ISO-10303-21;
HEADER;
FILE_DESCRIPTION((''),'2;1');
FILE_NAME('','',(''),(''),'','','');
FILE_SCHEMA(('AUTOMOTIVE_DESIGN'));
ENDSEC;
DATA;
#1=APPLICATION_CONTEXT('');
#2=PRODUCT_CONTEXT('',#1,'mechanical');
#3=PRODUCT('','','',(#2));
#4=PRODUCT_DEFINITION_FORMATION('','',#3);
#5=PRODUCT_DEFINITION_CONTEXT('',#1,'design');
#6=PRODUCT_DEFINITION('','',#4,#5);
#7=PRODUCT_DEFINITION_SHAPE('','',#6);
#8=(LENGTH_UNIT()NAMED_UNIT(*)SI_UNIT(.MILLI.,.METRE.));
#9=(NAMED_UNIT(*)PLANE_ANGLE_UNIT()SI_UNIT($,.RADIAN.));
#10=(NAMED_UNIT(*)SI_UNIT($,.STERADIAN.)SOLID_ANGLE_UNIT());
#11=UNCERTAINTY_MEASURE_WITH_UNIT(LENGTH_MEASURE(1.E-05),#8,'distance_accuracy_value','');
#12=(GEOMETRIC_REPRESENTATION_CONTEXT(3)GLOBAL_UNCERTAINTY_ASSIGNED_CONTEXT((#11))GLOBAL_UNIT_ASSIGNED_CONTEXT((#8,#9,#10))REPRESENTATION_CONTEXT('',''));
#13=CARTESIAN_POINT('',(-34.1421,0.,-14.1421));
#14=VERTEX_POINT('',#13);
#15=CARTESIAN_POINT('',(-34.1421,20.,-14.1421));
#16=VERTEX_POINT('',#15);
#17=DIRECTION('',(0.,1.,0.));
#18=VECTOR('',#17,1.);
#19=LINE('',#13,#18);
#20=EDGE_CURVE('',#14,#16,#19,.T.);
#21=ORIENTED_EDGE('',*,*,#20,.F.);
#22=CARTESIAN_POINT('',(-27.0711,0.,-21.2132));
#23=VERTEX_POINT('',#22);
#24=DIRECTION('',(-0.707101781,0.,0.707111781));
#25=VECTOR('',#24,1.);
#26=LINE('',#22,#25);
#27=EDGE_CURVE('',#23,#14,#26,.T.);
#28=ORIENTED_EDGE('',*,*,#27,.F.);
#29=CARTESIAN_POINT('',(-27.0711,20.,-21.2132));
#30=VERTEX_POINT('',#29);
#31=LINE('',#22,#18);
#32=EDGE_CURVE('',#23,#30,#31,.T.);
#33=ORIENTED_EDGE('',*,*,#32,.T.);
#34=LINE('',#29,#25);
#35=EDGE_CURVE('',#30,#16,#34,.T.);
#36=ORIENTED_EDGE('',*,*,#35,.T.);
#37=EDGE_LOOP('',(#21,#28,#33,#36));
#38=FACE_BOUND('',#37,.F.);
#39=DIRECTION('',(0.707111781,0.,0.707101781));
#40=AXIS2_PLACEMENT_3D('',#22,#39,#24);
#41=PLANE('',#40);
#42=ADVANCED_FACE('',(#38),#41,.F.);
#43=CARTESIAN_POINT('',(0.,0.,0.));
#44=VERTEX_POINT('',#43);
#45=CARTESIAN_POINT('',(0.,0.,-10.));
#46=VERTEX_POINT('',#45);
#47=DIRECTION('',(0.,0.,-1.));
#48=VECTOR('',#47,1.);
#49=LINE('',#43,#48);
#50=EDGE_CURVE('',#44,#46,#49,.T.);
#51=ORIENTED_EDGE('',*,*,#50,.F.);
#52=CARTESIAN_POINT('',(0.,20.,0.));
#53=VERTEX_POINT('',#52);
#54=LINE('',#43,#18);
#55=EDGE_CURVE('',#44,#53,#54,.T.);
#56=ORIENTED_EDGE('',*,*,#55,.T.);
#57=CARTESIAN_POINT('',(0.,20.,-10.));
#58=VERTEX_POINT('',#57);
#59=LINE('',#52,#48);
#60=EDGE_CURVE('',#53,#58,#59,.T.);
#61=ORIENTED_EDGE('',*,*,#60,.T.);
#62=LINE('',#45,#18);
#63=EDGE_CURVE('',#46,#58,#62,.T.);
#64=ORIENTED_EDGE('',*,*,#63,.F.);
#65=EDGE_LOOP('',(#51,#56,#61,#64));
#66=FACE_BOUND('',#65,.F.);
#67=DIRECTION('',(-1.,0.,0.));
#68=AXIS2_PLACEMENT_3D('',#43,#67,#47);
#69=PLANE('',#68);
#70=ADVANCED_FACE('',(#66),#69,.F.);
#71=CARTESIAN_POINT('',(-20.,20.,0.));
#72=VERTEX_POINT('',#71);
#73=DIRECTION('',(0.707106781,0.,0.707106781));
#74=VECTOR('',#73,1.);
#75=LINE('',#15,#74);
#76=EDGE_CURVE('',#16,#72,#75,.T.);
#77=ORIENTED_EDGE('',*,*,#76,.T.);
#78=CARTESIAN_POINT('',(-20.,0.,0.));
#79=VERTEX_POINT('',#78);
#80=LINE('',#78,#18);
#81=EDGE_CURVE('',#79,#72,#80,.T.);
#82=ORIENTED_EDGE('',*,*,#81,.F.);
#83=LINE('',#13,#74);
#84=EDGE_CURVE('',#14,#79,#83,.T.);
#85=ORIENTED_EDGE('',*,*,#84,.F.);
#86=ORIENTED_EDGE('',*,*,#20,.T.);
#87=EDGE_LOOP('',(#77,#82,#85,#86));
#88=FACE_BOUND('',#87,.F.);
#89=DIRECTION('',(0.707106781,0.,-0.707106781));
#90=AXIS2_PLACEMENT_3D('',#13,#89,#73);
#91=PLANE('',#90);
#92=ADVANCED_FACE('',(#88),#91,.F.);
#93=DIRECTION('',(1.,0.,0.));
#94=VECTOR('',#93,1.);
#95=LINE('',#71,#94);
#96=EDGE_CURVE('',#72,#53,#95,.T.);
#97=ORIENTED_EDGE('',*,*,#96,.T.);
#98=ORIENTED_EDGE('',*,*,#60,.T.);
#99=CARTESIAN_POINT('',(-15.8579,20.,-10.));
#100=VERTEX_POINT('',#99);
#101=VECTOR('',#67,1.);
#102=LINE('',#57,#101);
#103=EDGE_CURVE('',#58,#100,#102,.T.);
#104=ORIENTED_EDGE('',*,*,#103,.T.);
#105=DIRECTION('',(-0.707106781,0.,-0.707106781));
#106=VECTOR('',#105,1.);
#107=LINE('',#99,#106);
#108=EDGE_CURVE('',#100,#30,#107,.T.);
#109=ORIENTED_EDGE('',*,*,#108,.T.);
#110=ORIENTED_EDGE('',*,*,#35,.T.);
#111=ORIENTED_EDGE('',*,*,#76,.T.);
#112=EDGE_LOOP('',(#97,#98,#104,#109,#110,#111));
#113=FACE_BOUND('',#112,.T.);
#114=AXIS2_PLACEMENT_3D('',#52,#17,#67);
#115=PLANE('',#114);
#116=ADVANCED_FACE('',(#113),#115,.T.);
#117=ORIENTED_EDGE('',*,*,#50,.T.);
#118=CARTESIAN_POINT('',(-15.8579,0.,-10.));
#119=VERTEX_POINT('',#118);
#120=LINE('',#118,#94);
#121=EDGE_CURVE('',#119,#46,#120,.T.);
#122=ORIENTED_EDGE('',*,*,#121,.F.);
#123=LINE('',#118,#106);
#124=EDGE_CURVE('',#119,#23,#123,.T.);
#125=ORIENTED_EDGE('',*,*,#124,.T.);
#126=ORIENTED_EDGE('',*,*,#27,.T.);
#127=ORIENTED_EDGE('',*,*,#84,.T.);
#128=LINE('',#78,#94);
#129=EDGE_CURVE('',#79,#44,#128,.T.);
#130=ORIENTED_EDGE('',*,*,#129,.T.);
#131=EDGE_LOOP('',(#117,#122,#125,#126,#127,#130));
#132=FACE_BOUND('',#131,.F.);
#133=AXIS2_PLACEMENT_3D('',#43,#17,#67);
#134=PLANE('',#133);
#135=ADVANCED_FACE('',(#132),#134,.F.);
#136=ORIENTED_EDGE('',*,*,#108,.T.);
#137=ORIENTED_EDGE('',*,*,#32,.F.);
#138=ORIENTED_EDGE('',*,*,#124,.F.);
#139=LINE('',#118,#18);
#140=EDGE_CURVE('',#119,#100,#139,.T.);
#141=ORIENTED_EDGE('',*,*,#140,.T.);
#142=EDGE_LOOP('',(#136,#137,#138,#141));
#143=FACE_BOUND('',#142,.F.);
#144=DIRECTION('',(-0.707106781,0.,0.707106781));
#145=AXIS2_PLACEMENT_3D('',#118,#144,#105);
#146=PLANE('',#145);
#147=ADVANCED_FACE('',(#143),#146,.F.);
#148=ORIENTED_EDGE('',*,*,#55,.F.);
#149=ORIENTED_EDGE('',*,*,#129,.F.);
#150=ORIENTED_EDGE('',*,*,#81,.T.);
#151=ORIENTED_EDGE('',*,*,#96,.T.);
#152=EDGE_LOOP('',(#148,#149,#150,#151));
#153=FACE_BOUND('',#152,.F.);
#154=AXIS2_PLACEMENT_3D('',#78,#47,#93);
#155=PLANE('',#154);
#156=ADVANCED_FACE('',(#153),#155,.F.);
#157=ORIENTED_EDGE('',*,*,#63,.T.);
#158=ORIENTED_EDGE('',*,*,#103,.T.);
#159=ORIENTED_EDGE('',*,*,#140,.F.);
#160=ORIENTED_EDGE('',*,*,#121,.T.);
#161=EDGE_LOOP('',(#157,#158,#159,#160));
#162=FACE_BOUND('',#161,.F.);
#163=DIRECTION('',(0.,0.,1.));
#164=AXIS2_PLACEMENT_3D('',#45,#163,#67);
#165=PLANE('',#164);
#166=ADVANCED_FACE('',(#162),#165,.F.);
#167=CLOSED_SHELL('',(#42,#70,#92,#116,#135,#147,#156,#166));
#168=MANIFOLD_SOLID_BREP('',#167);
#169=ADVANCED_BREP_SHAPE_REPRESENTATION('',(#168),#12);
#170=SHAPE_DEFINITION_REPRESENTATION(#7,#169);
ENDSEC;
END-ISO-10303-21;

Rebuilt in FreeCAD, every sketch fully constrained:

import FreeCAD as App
import Part
import Sketcher
Q = App.Units.Quantity


def add_polygon(sketch, points):
    """Adds a closed chain of lines whose ends are joined by coincident constraints."""
    first, n = sketch.GeometryCount, len(points)
    for a, b in zip(points, points[1:] + points[:1]):
        sketch.addGeometry(Part.LineSegment(App.Vector(*a, 0), App.Vector(*b, 0)), False)
    for i in range(n):
        sketch.addConstraint(Sketcher.Constraint("Coincident", first + i, 2, first + (i + 1) % n, 1))

doc = App.newDocument("Part")
params = doc.addObject("Spreadsheet::Sheet", "Params")
for row, (alias, value) in enumerate([
    ("sketch1_width", "20 mm"),
    ("sketch1_height", "10 mm"),
    ("sketch1_length", "10 mm"),
    ("sketch1_length2", "20 mm"),
    ("pad1_length", "20 mm"),
], start=1):
    params.set(f"A{row}", alias)
    params.set(f"B{row}", "=" + value)
    params.setAlias(f"B{row}", alias)

body = doc.addObject("PartDesign::Body", "Body")

sketch1 = body.newObject("Sketcher::SketchObject", "Sketch")
sketch1.AttachmentSupport = (doc.getObject("XZ_Plane"), [""])
sketch1.MapMode = "FlatFace"
add_polygon(sketch1, [(-20, 0), (0, 0), (0, -10), (-15.8579, -10), (-27.0711, -21.2132), (-34.1421, -14.1421)])
sketch1.addConstraint([
    Sketcher.Constraint("Horizontal", 0),
    Sketcher.Constraint("Vertical", 1),
    Sketcher.Constraint("Horizontal", 2),
    Sketcher.Constraint("Coincident", 0, 2, -1, 1),
    Sketcher.Constraint("Perpendicular", 3, 4),
    Sketcher.Constraint("Perpendicular", 4, 5),
    Sketcher.Constraint("DistanceX", 0, 1, 0, 2, Q("20 mm")),
    Sketcher.Constraint("DistanceY", 1, 2, 1, 1, Q("10 mm")),
    Sketcher.Constraint("Angle", 5, Q("45 deg")),
    Sketcher.Constraint("Distance", 4, Q("10 mm")),
    Sketcher.Constraint("Distance", 5, Q("20 mm")),
])
sketch1.setExpression("Constraints[12]", "Params.sketch1_width")
sketch1.setExpression("Constraints[13]", "Params.sketch1_height")
sketch1.setExpression("Constraints[15]", "Params.sketch1_length")
sketch1.setExpression("Constraints[16]", "Params.sketch1_length2")
pad1 = body.newObject("PartDesign::Pad", "Pad")
pad1.Profile = sketch1
pad1.setExpression("Length", "Params.pad1_length")
pad1.Reversed = True

doc.recompute()
